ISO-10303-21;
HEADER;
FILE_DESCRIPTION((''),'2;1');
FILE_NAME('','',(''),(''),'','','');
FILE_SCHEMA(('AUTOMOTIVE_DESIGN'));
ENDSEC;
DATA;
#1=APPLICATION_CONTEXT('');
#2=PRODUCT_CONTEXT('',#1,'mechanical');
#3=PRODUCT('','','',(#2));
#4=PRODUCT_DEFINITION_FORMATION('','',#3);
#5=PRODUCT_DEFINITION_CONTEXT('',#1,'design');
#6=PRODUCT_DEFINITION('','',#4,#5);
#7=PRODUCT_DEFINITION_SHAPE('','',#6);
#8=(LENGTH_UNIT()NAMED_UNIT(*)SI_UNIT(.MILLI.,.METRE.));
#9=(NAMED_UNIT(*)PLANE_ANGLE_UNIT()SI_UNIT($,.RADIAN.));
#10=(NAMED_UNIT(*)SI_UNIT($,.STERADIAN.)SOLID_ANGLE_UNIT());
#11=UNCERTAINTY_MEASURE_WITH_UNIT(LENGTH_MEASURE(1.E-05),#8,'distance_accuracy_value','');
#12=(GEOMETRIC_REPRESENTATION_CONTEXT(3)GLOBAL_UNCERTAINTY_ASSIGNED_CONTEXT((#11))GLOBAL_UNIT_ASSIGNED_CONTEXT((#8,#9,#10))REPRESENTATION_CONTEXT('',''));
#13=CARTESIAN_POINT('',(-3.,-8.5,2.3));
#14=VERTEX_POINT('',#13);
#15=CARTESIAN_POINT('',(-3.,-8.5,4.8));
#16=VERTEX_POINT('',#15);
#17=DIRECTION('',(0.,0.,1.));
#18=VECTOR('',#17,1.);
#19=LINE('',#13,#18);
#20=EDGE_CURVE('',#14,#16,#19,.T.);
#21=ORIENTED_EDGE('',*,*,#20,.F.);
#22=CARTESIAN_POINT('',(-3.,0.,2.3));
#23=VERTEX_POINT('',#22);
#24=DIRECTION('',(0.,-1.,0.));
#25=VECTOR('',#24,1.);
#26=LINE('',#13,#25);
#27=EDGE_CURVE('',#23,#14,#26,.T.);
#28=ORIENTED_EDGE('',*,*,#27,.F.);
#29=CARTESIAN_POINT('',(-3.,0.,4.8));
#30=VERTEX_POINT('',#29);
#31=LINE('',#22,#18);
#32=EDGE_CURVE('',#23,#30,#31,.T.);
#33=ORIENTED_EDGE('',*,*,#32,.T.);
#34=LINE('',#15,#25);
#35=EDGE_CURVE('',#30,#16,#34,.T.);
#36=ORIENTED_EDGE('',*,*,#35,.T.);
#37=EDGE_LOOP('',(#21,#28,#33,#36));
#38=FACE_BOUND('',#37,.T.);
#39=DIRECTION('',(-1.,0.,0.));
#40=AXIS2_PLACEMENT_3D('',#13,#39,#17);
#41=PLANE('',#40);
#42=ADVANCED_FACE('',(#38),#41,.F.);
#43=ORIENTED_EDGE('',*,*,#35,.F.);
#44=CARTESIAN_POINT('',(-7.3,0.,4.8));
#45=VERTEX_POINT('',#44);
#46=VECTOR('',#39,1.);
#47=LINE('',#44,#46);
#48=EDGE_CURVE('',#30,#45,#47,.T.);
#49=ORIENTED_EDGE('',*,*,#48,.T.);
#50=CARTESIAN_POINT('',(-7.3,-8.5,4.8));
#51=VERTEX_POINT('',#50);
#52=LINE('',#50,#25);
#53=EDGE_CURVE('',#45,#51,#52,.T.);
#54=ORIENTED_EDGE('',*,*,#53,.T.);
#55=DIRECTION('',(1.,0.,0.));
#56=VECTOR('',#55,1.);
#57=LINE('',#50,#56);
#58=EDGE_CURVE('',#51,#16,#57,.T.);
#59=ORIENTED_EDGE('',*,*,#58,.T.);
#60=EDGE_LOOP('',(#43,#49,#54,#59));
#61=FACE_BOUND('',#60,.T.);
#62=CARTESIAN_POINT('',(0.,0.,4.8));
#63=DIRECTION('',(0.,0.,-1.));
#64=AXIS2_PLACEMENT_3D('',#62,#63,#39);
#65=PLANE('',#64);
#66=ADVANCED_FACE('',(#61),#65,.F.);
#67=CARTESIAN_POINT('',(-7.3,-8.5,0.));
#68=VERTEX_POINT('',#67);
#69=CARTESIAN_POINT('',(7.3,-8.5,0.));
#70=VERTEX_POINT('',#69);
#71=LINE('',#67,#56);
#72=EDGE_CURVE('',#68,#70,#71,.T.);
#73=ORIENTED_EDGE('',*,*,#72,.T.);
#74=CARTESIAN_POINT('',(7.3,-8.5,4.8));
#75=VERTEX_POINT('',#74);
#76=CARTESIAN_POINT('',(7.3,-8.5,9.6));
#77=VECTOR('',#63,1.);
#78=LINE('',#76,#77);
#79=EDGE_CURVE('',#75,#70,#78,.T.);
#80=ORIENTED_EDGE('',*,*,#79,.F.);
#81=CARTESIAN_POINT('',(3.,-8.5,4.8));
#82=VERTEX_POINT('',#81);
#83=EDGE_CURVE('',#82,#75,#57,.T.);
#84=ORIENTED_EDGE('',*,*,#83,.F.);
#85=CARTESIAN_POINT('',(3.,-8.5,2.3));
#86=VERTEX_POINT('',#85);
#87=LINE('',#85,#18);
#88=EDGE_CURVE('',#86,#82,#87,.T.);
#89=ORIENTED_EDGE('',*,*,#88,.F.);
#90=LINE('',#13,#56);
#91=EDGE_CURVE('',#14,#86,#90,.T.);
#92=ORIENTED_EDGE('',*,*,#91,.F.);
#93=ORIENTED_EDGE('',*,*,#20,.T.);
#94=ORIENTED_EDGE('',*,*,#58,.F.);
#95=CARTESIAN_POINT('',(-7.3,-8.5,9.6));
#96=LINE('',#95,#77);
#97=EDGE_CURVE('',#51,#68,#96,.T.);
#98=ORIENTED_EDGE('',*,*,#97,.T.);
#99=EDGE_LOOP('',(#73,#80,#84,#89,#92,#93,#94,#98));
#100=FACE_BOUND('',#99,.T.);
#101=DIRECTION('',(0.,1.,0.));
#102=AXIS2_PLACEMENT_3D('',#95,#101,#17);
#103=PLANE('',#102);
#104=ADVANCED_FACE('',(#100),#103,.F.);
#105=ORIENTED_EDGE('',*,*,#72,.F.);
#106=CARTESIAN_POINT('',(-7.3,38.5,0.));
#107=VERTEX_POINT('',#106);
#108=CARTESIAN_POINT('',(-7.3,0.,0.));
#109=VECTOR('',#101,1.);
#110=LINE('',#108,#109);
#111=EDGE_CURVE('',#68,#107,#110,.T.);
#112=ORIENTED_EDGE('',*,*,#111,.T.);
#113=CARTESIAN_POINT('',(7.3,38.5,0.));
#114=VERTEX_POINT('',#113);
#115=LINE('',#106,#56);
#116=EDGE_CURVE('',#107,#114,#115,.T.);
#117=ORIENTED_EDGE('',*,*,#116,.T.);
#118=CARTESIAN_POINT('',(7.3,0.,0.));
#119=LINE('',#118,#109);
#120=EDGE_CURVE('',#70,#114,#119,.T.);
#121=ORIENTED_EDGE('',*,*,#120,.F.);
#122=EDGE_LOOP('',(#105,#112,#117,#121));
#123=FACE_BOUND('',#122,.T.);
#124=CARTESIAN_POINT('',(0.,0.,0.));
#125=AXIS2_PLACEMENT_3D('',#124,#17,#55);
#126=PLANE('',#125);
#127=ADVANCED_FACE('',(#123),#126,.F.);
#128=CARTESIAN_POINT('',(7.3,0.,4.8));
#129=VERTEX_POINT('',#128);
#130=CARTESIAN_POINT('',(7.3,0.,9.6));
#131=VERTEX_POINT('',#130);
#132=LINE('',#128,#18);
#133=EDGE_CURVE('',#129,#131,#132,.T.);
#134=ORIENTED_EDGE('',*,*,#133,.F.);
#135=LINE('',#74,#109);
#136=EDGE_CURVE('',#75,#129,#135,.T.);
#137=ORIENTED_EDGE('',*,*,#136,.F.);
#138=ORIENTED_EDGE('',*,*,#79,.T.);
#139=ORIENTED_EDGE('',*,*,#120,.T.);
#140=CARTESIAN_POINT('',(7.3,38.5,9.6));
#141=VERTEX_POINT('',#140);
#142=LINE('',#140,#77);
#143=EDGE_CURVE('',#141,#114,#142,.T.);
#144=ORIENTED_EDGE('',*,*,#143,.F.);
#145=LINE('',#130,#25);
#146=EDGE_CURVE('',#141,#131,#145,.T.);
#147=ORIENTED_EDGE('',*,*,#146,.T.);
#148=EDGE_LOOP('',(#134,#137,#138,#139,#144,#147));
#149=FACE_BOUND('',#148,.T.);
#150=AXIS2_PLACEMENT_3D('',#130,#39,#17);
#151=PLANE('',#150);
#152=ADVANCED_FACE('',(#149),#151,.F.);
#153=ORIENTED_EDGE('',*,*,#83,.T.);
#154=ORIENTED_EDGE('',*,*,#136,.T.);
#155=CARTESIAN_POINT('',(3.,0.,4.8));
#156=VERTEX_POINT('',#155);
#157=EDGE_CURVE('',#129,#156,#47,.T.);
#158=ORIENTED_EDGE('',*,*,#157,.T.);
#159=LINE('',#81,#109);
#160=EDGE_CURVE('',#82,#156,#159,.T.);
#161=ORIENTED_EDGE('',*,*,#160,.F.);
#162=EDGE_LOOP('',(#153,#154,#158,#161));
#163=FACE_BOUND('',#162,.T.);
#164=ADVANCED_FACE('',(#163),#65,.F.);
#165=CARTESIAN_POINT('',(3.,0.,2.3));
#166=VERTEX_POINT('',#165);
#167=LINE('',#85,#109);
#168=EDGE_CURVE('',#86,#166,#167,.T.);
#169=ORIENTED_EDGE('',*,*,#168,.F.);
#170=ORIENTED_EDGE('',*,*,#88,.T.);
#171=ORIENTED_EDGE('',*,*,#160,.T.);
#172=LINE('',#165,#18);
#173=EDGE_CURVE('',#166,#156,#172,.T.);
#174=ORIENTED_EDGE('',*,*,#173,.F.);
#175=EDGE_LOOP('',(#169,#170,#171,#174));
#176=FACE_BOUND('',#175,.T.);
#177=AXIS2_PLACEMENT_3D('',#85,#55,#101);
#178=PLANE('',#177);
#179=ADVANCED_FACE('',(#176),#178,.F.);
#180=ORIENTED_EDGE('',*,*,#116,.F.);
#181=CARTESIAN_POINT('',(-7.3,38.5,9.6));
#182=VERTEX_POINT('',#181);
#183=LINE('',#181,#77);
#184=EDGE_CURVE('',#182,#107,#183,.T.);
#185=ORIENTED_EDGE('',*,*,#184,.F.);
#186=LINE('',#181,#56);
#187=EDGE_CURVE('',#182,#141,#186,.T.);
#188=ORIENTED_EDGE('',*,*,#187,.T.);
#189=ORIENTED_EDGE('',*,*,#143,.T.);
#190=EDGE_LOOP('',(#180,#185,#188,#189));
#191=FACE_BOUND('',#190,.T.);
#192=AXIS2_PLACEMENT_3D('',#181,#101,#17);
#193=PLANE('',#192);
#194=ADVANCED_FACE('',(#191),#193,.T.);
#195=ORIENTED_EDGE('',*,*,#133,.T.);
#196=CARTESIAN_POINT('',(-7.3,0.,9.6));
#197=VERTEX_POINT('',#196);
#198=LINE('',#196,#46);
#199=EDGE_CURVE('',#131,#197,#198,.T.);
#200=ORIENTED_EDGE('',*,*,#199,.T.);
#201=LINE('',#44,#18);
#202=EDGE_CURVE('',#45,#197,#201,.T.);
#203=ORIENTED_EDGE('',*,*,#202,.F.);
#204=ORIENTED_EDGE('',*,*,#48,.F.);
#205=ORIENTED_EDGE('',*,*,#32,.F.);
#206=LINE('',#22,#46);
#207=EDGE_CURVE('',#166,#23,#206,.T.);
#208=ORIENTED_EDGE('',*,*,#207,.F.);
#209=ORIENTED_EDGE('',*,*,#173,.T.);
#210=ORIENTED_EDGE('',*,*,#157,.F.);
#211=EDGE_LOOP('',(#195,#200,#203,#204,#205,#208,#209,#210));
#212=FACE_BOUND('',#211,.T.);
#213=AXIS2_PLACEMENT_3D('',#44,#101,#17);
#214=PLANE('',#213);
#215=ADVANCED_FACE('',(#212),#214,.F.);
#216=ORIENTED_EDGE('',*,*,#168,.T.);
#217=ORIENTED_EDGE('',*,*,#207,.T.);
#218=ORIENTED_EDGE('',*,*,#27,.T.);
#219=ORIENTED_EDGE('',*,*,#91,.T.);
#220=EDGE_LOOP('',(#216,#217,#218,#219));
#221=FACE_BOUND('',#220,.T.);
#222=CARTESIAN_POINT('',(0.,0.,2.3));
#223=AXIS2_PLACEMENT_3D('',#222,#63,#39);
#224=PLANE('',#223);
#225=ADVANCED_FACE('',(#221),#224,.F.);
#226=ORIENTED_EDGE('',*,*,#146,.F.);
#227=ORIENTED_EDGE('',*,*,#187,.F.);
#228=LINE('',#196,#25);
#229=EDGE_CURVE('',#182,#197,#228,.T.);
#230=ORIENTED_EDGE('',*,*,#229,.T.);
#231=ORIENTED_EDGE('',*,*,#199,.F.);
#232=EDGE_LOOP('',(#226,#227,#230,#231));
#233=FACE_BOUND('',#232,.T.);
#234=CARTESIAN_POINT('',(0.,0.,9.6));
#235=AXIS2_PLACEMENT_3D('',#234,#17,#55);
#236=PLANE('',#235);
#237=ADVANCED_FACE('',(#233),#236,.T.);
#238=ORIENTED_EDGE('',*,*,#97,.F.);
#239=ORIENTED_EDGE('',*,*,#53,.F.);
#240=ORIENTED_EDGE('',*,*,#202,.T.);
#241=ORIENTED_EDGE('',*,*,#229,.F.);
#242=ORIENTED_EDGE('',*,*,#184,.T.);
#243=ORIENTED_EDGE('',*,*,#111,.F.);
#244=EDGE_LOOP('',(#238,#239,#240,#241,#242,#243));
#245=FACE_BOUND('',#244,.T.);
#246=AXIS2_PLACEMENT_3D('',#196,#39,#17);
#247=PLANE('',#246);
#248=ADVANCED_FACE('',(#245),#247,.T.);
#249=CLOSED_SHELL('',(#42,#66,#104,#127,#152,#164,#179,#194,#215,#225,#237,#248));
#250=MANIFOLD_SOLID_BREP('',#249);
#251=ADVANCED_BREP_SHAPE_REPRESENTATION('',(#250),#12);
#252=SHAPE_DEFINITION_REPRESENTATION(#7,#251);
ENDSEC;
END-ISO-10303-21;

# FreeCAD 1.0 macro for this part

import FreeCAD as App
import Part
import Sketcher
from FreeCAD import Vector

doc = App.newDocument("Part")
body = doc.addObject("PartDesign::Body", "Body")

# Sketch on XY plane
sketch1 = doc.addObject("Sketcher::SketchObject", "Sketch")
body.addObject(sketch1)
sketch1.AttachmentSupport = (doc.XY_Plane, [""])
sketch1.MapMode = "FlatFace"
sketch1.addGeometry([
    Part.LineSegment(Vector(-7, 38, 0), Vector(-7, -8, 0)),
    Part.LineSegment(Vector(-7, -8, 0), Vector(7, -8, 0)),
    Part.LineSegment(Vector(7, -8, 0), Vector(7, 38, 0)),
    Part.LineSegment(Vector(7, 38, 0), Vector(-7, 38, 0)),
], False)
sketch1.addConstraint([
    Sketcher.Constraint("Coincident", 0, 2, 1, 1),
    Sketcher.Constraint("Coincident", 1, 2, 2, 1),
    Sketcher.Constraint("Coincident", 2, 2, 3, 1),
    Sketcher.Constraint("Coincident", 3, 2, 0, 1),
    Sketcher.Constraint("Vertical", 0),
    Sketcher.Constraint("Horizontal", 1),
    Sketcher.Constraint("Vertical", 2),
    Sketcher.Constraint("Horizontal", 3),
    Sketcher.Constraint("DistanceY", 0, 2, 0, 1, 47.0),
    Sketcher.Constraint("DistanceX", 1, 1, 1, 2, 14.6),
    Sketcher.Constraint("DistanceX", 0, 2, -1, 1, 7.3),
    Sketcher.Constraint("DistanceY", 0, 2, -1, 1, 8.5),
])
pad1 = doc.addObject("PartDesign::Pad", "Pad")
body.addObject(pad1)
pad1.Profile = sketch1
pad1.Length = 9.6

# Sketch on XY plane
sketch2 = doc.addObject("Sketcher::SketchObject", "Sketch001")
body.addObject(sketch2)
sketch2.AttachmentSupport = (doc.XY_Plane, [""])
sketch2.MapMode = "FlatFace"
sketch2.AttachmentOffset = App.Placement(Vector(0, 0, 9.6), App.Rotation())
sketch2.addGeometry([
    Part.LineSegment(Vector(-7, 0, 0), Vector(-7, -8, 0)),
    Part.LineSegment(Vector(-7, -8, 0), Vector(7, -8, 0)),
    Part.LineSegment(Vector(7, -8, 0), Vector(7, 0, 0)),
    Part.LineSegment(Vector(7, 0, 0), Vector(-7, 0, 0)),
], False)
sketch2.addConstraint([
    Sketcher.Constraint("Coincident", 0, 2, 1, 1),
    Sketcher.Constraint("Coincident", 1, 2, 2, 1),
    Sketcher.Constraint("Coincident", 2, 2, 3, 1),
    Sketcher.Constraint("Coincident", 3, 2, 0, 1),
    Sketcher.Constraint("Vertical", 0),
    Sketcher.Constraint("Horizontal", 1),
    Sketcher.Constraint("Vertical", 2),
    Sketcher.Constraint("Horizontal", 3),
    Sketcher.Constraint("Symmetric", 2, 2, 3, 2, -1, 1),
    Sketcher.Constraint("DistanceX", 1, 1, 1, 2, 14.6),
    Sketcher.Constraint("DistanceY", 0, 2, 0, 1, 8.5),
])
pocket1 = doc.addObject("PartDesign::Pocket", "Pocket")
body.addObject(pocket1)
pocket1.Profile = sketch2
pocket1.Length = 4.8

# Sketch on XY plane
sketch3 = doc.addObject("Sketcher::SketchObject", "Sketch002")
body.addObject(sketch3)
sketch3.AttachmentSupport = (doc.XY_Plane, [""])
sketch3.MapMode = "FlatFace"
sketch3.AttachmentOffset = App.Placement(Vector(0, 0, 4.8), App.Rotation())
sketch3.addGeometry([
    Part.LineSegment(Vector(-3, 0, 0), Vector(-3, -8, 0)),
    Part.LineSegment(Vector(-3, -8, 0), Vector(3, -8, 0)),
    Part.LineSegment(Vector(3, -8, 0), Vector(3, 0, 0)),
    Part.LineSegment(Vector(3, 0, 0), Vector(-3, 0, 0)),
], False)
sketch3.addConstraint([
    Sketcher.Constraint("Coincident", 0, 2, 1, 1),
    Sketcher.Constraint("Coincident", 1, 2, 2, 1),
    Sketcher.Constraint("Coincident", 2, 2, 3, 1),
    Sketcher.Constraint("Coincident", 3, 2, 0, 1),
    Sketcher.Constraint("Vertical", 0),
    Sketcher.Constraint("Horizontal", 1),
    Sketcher.Constraint("Vertical", 2),
    Sketcher.Constraint("Horizontal", 3),
    Sketcher.Constraint("Symmetric", 2, 2, 3, 2, -1, 1),
    Sketcher.Constraint("DistanceX", 1, 1, 1, 2, 6.0),
    Sketcher.Constraint("DistanceY", 0, 2, 0, 1, 8.5),
])
pocket2 = doc.addObject("PartDesign::Pocket", "Pocket001")
body.addObject(pocket2)
pocket2.Profile = sketch3
pocket2.Length = 2.5

doc.recompute()
